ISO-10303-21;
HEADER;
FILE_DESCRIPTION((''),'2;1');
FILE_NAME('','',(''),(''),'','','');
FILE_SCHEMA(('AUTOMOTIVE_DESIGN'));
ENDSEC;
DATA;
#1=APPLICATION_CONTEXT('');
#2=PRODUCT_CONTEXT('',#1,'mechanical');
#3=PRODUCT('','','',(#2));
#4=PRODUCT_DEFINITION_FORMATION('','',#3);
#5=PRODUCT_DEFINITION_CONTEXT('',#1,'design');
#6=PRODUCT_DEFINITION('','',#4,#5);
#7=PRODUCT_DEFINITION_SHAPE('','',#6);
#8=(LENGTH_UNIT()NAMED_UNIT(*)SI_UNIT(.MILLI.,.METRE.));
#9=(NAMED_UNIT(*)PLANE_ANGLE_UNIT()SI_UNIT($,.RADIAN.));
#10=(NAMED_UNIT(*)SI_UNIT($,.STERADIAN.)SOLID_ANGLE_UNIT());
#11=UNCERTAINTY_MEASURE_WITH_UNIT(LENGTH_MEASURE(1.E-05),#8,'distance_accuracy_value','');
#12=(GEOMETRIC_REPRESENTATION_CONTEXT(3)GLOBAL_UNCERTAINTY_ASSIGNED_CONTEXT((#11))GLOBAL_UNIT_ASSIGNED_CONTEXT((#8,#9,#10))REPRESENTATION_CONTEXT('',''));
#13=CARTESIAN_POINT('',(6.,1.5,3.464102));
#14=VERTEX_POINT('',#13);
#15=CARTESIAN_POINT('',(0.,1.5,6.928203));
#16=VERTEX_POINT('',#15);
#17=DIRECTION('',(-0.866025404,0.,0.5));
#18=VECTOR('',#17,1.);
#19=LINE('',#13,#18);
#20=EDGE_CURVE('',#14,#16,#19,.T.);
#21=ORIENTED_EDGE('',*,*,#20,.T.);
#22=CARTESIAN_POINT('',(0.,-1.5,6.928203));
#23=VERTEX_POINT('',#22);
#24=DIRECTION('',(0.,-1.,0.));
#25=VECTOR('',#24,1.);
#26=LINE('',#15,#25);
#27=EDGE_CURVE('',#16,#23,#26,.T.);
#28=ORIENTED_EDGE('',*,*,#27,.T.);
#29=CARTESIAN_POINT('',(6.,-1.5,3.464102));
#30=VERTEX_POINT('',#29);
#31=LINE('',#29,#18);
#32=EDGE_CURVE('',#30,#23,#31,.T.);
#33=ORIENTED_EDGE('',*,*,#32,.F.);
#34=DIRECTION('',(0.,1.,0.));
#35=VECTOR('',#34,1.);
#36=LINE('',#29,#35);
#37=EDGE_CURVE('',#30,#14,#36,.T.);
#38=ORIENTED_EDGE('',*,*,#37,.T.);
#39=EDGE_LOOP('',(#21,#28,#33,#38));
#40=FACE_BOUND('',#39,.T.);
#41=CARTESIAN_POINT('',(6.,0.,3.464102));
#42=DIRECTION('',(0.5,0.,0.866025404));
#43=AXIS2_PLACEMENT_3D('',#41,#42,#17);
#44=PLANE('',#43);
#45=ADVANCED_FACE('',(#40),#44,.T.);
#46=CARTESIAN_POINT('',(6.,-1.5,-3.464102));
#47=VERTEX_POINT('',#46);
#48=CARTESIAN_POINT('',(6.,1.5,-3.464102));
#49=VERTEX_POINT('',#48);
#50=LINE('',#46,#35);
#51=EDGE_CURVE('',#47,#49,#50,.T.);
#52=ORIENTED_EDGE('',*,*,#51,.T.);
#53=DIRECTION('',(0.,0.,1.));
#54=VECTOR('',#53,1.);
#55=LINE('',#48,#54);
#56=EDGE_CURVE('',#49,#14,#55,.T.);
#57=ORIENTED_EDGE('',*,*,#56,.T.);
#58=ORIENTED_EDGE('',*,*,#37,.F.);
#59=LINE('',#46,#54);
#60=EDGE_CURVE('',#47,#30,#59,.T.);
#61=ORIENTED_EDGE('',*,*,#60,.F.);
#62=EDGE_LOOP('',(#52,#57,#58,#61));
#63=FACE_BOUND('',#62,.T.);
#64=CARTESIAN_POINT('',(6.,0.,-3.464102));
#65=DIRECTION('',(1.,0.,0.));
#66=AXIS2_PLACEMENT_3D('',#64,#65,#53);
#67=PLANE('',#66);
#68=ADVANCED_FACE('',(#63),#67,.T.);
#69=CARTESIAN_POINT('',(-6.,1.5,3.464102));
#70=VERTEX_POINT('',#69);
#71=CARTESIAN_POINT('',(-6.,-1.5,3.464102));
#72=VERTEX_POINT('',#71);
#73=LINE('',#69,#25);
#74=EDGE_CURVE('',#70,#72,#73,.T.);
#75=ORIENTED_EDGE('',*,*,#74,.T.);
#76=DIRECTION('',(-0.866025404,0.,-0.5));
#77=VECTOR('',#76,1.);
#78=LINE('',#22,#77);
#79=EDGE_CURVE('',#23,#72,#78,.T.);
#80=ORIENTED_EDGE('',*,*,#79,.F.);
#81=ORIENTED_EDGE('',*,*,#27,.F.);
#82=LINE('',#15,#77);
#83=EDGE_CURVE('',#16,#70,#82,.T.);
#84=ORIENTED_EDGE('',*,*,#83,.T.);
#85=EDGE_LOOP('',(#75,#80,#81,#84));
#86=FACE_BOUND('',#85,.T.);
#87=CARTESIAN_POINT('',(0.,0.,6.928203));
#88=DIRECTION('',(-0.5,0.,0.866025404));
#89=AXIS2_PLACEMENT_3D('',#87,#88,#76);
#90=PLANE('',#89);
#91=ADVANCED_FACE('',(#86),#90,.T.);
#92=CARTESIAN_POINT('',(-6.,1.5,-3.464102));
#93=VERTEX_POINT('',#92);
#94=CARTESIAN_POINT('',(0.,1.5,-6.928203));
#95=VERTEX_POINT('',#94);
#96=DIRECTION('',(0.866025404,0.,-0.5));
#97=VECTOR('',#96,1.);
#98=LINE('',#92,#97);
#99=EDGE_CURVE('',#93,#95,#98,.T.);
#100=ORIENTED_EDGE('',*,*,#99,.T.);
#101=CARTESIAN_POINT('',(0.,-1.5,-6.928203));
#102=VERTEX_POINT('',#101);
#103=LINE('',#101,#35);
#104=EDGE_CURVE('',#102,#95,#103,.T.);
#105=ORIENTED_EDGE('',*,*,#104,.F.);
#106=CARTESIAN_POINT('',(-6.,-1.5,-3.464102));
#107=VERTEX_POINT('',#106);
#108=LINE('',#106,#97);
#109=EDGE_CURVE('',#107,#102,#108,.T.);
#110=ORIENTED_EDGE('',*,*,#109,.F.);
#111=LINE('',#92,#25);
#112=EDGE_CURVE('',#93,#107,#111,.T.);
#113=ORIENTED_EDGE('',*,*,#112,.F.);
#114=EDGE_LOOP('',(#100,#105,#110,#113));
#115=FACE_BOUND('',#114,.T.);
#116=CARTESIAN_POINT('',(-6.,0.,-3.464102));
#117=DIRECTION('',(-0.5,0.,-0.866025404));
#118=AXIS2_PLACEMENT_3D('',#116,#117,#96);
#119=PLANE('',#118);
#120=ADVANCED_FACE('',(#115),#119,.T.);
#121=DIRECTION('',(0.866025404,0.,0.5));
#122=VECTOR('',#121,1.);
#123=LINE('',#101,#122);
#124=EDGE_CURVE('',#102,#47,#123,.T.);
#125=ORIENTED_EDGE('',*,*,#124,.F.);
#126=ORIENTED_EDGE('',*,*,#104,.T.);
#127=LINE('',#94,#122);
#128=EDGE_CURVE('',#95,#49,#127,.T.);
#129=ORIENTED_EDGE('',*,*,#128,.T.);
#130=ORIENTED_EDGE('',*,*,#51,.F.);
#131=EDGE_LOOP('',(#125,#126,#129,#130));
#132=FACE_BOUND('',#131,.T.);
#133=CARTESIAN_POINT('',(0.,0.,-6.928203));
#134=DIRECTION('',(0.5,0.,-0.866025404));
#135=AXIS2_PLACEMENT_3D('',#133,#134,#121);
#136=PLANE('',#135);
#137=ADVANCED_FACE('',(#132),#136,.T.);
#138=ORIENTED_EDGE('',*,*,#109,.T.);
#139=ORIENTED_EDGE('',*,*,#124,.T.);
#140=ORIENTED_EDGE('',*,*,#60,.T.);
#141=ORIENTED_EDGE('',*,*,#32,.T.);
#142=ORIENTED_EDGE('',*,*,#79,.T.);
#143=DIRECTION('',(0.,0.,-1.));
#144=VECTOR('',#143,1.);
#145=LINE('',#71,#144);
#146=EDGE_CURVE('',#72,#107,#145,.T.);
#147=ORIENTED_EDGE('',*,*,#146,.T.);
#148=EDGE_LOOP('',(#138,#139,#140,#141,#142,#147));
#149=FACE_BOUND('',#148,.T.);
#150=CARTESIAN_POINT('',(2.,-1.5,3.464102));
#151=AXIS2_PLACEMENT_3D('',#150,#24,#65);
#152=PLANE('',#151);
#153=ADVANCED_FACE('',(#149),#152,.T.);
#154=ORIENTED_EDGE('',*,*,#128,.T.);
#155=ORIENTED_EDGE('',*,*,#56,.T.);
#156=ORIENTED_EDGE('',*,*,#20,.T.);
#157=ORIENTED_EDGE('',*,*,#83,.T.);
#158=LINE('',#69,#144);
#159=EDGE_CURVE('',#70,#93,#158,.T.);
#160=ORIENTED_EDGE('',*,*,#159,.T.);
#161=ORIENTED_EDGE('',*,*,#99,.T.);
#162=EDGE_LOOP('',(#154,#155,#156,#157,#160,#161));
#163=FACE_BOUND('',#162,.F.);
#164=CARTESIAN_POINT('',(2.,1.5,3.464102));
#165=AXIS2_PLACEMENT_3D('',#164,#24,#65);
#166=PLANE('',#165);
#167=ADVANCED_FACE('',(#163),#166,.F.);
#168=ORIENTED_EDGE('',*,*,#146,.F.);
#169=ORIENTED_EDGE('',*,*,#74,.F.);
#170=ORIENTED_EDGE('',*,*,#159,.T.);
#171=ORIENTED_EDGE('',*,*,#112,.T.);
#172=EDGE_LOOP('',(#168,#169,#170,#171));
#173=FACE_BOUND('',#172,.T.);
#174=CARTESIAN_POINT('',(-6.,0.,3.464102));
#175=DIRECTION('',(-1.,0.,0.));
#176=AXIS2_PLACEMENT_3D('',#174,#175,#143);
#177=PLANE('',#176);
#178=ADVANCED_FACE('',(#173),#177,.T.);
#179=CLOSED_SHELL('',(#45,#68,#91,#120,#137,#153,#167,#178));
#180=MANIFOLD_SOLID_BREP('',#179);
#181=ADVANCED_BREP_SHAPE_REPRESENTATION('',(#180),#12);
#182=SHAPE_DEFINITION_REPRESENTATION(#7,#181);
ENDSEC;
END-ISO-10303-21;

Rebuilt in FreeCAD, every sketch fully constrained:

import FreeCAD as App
import Part
import Sketcher
from FreeCAD import Vector
Q = App.Units.Quantity


def add_polygon(sketch, points):
    """Adds a closed chain of lines whose ends are joined by coincident constraints."""
    first, n = sketch.GeometryCount, len(points)
    for a, b in zip(points, points[1:] + points[:1]):
        sketch.addGeometry(Part.LineSegment(App.Vector(*a, 0), App.Vector(*b, 0)), False)
    for i in range(n):
        sketch.addConstraint(Sketcher.Constraint("Coincident", first + i, 2, first + (i + 1) % n, 1))

doc = App.newDocument("Part")
params = doc.addObject("Spreadsheet::Sheet", "Params")
for row, (alias, value) in enumerate([
    ("pad1_length", "3 mm"),
], start=1):
    params.set(f"A{row}", alias)
    params.set(f"B{row}", "=" + value)
    params.setAlias(f"B{row}", alias)

body = doc.addObject("PartDesign::Body", "Body")

sketch1 = body.newObject("Sketcher::SketchObject", "Sketch")
sketch1.AttachmentSupport = (doc.getObject("XZ_Plane"), [""])
sketch1.MapMode = "FlatFace"
add_polygon(sketch1, [(6, 3), (0, 7), (-6, 3), (-6, -3), (0, -7), (6, -3)])
sketch1.addConstraint([
    Sketcher.Constraint("Vertical", 2),
    Sketcher.Constraint("Vertical", 5),
    Sketcher.Constraint("Symmetric", 0, 2, 3, 2, -1, 1),
    Sketcher.Constraint("Symmetric", 1, 2, 4, 2, -1, 1),
    Sketcher.Constraint("PointOnObject", 0, 2, -2),
    Sketcher.Constraint("Parallel", 0, 3),
    Sketcher.Constraint("Horizontal", 2, 2, 4, 2),
    Sketcher.Constraint("Angle", 0, Q("150 deg")),
    Sketcher.Constraint("DistanceX", 1, 2, -1, 1, Q("6 mm")),
    Sketcher.Constraint("DistanceY", -1, 1, 1, 2, Q("3.464102 mm")),
])
pad1 = body.newObject("PartDesign::Pad", "Pad")
pad1.Profile = sketch1
pad1.setExpression("Length", "Params.pad1_length")
pad1.Midplane = True

doc.recompute()
